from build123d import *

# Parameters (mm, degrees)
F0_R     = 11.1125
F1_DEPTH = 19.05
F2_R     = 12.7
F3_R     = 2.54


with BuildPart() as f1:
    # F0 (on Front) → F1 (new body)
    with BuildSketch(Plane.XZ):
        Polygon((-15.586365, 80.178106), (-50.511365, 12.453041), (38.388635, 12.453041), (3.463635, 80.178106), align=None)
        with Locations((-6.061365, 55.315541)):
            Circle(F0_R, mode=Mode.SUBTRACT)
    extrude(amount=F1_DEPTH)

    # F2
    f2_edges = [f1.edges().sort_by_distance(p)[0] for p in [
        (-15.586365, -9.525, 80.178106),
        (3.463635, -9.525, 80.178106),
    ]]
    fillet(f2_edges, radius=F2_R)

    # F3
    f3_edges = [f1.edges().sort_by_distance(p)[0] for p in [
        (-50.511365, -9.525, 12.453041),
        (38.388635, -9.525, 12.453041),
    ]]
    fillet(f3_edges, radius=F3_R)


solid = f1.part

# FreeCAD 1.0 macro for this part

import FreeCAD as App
import Part
import Sketcher
Q = App.Units.Quantity


def edges_at(feature, points):
    """Names of the edges that pass closest to the given points."""
    edges = feature.Shape.Edges
    near = lambda p: min(range(len(edges)), key=lambda i: edges[i].distToShape(Part.Vertex(*p))[0])
    return sorted({f"Edge{near(p) + 1}" for p in points})

doc = App.newDocument("Part")
body = doc.addObject("PartDesign::Body", "Body")

sketch1 = body.newObject("Sketcher::SketchObject", "Sketch")
sketch1.AttachmentSupport = (doc.getObject("XZ_Plane"), [""])
sketch1.MapMode = "FlatFace"
sketch1.addGeometry([
    Part.LineSegment(App.Vector(-16, 80, 0), App.Vector(-51, 12, 0)),
    Part.LineSegment(App.Vector(-51, 12, 0), App.Vector(38, 12, 0)),
    Part.LineSegment(App.Vector(38, 12, 0), App.Vector(3, 80, 0)),
    Part.LineSegment(App.Vector(3, 80, 0), App.Vector(-16, 80, 0)),
    Part.Circle(App.Vector(-6, 55, 0), App.Vector(0, 0, 1), 11),
], False)
sketch1.addConstraint([
    Sketcher.Constraint("Coincident", 0, 2, 1, 1),
    Sketcher.Constraint("Coincident", 1, 2, 2, 1),
    Sketcher.Constraint("Coincident", 2, 2, 3, 1),
    Sketcher.Constraint("Coincident", 3, 2, 0, 1),
    Sketcher.Constraint("Horizontal", 1),
    Sketcher.Constraint("Horizontal", 3),
    Sketcher.Constraint("Equal", 0, 2),
    Sketcher.Constraint("Distance", 0, Q("3 in")),
    Sketcher.Constraint("Diameter", 4, Q("0.875 in")),
    Sketcher.Constraint("DistanceX", 1, 1, 1, 2, Q("3.5 in")),
    Sketcher.Constraint("DistanceX", 3, 2, 3, 1, Q("0.75 in")),
    Sketcher.Constraint("DistanceX", 0, 2, 4, 3, Q("1.75 in")),
    Sketcher.Constraint("DistanceY", 0, 2, 4, 3, Q("1.6875 in")),
    Sketcher.Constraint("DistanceY", -1, 1, 4, 3, Q("55.315541 mm")),
    Sketcher.Constraint("DistanceX", 4, 3, -1, 1, Q("6.061365 mm")),
])
pad1 = body.newObject("PartDesign::Pad", "Pad")
pad1.Profile = sketch1
pad1.Length = Q("0.75 in")
doc.recompute()

fillet = body.newObject("PartDesign::Fillet", "Fillet")
fillet.Base = (pad1, edges_at(pad1, [(-15.586, -9.525, 80.178), (3.464, -9.525, 80.178)]))
fillet.Radius = Q("0.5 in")
doc.recompute()

fillet2 = body.newObject("PartDesign::Fillet", "Fillet001")
fillet2.Base = (fillet, edges_at(fillet, [(-50.511, -9.525, 12.453), (38.389, -9.525, 12.453)]))
fillet2.Radius = Q("0.1 in")

doc.recompute()
